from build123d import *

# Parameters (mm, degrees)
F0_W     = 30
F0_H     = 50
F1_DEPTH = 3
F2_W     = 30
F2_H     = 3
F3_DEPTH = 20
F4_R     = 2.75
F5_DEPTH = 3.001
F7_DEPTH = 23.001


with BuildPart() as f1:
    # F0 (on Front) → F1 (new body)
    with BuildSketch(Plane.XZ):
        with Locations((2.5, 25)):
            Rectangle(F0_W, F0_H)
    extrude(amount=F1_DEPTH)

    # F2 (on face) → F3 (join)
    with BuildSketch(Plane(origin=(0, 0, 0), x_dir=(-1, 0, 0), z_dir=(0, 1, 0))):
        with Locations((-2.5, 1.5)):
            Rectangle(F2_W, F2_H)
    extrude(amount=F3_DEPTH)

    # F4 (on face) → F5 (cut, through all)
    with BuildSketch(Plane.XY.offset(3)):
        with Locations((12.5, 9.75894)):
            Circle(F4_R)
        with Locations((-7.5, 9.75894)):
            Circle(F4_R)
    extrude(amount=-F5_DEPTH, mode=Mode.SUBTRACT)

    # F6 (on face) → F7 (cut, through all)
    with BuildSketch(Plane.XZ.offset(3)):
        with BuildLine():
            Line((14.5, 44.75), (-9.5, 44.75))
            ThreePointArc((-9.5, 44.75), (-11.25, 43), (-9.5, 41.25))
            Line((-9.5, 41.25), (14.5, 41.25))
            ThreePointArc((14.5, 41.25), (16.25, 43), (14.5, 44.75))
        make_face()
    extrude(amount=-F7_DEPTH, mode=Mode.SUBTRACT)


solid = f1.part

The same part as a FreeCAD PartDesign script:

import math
import FreeCAD as App
import Part
import Sketcher

doc = App.newDocument("Part")
params = doc.addObject("Spreadsheet::Sheet", "Params")
for row, (alias, value) in enumerate([
    ("sketch1_width", "30 mm"),
    ("sketch1_height", "50 mm"),
    ("pad1_length", "3 mm"),
    ("sketch2_width", "30 mm"),
    ("sketch2_height", "3 mm"),
    ("pad2_length", "20 mm"),
    ("sketch3_diameter", "5.5 mm"),
    ("sketch4_width", "24 mm"),
    ("sketch4_radius", "1.75 mm"),
], start=1):
    params.set(f"A{row}", alias)
    params.set(f"B{row}", "=" + value)
    params.setAlias(f"B{row}", alias)

body = doc.addObject("PartDesign::Body", "Body")

# Sketch on XZ plane
sketch1 = doc.addObject("Sketcher::SketchObject", "Sketch")
body.addObject(sketch1)
sketch1.AttachmentSupport = (doc.XZ_Plane, [""])
sketch1.MapMode = "FlatFace"
sketch1.addGeometry(Part.LineSegment(App.Vector(-12, 50, 0), App.Vector(-12, 0, 0)), False)
sketch1.addGeometry(Part.LineSegment(App.Vector(-12, 0, 0), App.Vector(18, 0, 0)), False)
sketch1.addGeometry(Part.LineSegment(App.Vector(18, 0, 0), App.Vector(18, 50, 0)), False)
sketch1.addGeometry(Part.LineSegment(App.Vector(18, 50, 0), App.Vector(-12, 50, 0)), False)
sketch1.addConstraint(Sketcher.Constraint("Coincident", 0, 2, 1, 1))
sketch1.addConstraint(Sketcher.Constraint("Coincident", 1, 2, 2, 1))
sketch1.addConstraint(Sketcher.Constraint("Coincident", 2, 2, 3, 1))
sketch1.addConstraint(Sketcher.Constraint("Coincident", 3, 2, 0, 1))
sketch1.addConstraint(Sketcher.Constraint("Vertical", 0))
sketch1.addConstraint(Sketcher.Constraint("Horizontal", 1))
sketch1.addConstraint(Sketcher.Constraint("Vertical", 2))
sketch1.addConstraint(Sketcher.Constraint("Horizontal", 3))
sketch1.addConstraint(Sketcher.Constraint("PointOnObject", 0, 2, -1))
sketch1.addConstraint(Sketcher.Constraint("DistanceX", 1, 1, 1, 2, 30.0))
sketch1.addConstraint(Sketcher.Constraint("DistanceY", 0, 2, 0, 1, 50.0))
sketch1.addConstraint(Sketcher.Constraint("DistanceX", 0, 2, -1, 1, 12.5))
sketch1.setExpression("Constraints[9]", "Params.sketch1_width")
sketch1.setExpression("Constraints[10]", "Params.sketch1_height")
pad1 = doc.addObject("PartDesign::Pad", "Pad")
body.addObject(pad1)
pad1.Profile = sketch1
pad1.setExpression("Length", "Params.pad1_length")

# Sketch on XZ plane
sketch2 = doc.addObject("Sketcher::SketchObject", "Sketch001")
body.addObject(sketch2)
sketch2.AttachmentSupport = (doc.XZ_Plane, [""])
sketch2.MapMode = "FlatFace"
sketch2.addGeometry(Part.LineSegment(App.Vector(17.5, 3, 0), App.Vector(17.5, 0, 0)), False)
sketch2.addGeometry(Part.LineSegment(App.Vector(17.5, 0, 0), App.Vector(-12.5, 0, 0)), False)
sketch2.addGeometry(Part.LineSegment(App.Vector(-12.5, 0, 0), App.Vector(-12.5, 3, 0)), False)
sketch2.addGeometry(Part.LineSegment(App.Vector(-12.5, 3, 0), App.Vector(17.5, 3, 0)), False)
sketch2.addConstraint(Sketcher.Constraint("Coincident", 0, 2, 1, 1))
sketch2.addConstraint(Sketcher.Constraint("Coincident", 1, 2, 2, 1))
sketch2.addConstraint(Sketcher.Constraint("Coincident", 2, 2, 3, 1))
sketch2.addConstraint(Sketcher.Constraint("Coincident", 3, 2, 0, 1))
sketch2.addConstraint(Sketcher.Constraint("Vertical", 0))
sketch2.addConstraint(Sketcher.Constraint("Horizontal", 1))
sketch2.addConstraint(Sketcher.Constraint("Vertical", 2))
sketch2.addConstraint(Sketcher.Constraint("Horizontal", 3))
sketch2.addConstraint(Sketcher.Constraint("PointOnObject", 0, 2, -1))
sketch2.addConstraint(Sketcher.Constraint("DistanceX", 1, 2, 1, 1, 30.0))
sketch2.addConstraint(Sketcher.Constraint("DistanceY", 0, 2, 0, 1, 3.0))
sketch2.addConstraint(Sketcher.Constraint("DistanceX", -1, 1, 0, 2, 17.5))
sketch2.setExpression("Constraints[9]", "Params.sketch2_width")
sketch2.setExpression("Constraints[10]", "Params.sketch2_height")
pad2 = doc.addObject("PartDesign::Pad", "Pad001")
body.addObject(pad2)
pad2.Profile = sketch2
pad2.setExpression("Length", "Params.pad2_length")
pad2.Reversed = True

# Sketch on XY plane
sketch3 = doc.addObject("Sketcher::SketchObject", "Sketch002")
body.addObject(sketch3)
sketch3.AttachmentSupport = (doc.XY_Plane, [""])
sketch3.MapMode = "FlatFace"
sketch3.AttachmentOffset = App.Placement(App.Vector(0, 0, 3), App.Rotation())
sketch3.addGeometry(Part.Circle(App.Vector(12.5, 9.8, 0), App.Vector(0, 0, 1), 2.8), False)
sketch3.addGeometry(Part.Circle(App.Vector(-7.5, 9.8, 0), App.Vector(0, 0, 1), 2.8), False)
sketch3.addConstraint(Sketcher.Constraint("Equal", 0, 1))
sketch3.addConstraint(Sketcher.Constraint("Horizontal", 0, 3, 1, 3))
sketch3.addConstraint(Sketcher.Constraint("Diameter", 0, 5.5))
sketch3.addConstraint(Sketcher.Constraint("DistanceX", 1, 3, 0, 3, 20.0))
sketch3.addConstraint(Sketcher.Constraint("DistanceX", -1, 1, 0, 3, 12.5))
sketch3.addConstraint(Sketcher.Constraint("DistanceY", -1, 1, 0, 3, 9.75894))
sketch3.setExpression("Constraints[2]", "Params.sketch3_diameter")
pocket1 = doc.addObject("PartDesign::Pocket", "Pocket")
body.addObject(pocket1)
pocket1.Profile = sketch3
pocket1.Type = "ThroughAll"

# Sketch on XZ plane
sketch4 = doc.addObject("Sketcher::SketchObject", "Sketch003")
body.addObject(sketch4)
sketch4.AttachmentSupport = (doc.XZ_Plane, [""])
sketch4.MapMode = "FlatFace"
sketch4.AttachmentOffset = App.Placement(App.Vector(0, 0, 3), App.Rotation())
sketch4.addGeometry(Part.LineSegment(App.Vector(14.5, 44.8, 0), App.Vector(-9.5, 44.8, 0)), False)
sketch4.addGeometry(Part.ArcOfCircle(Part.Circle(App.Vector(-9.5, 43, 0), App.Vector(0, 0, 1), 1.8), math.radians(90), math.radians(270)), False)
sketch4.addGeometry(Part.LineSegment(App.Vector(-9.5, 41.2, 0), App.Vector(14.5, 41.2, 0)), False)
sketch4.addGeometry(Part.ArcOfCircle(Part.Circle(App.Vector(14.5, 43, 0), App.Vector(0, 0, 1), 1.8), math.radians(-90), math.radians(90)), False)
sketch4.addConstraint(Sketcher.Constraint("Tangent", 0, 2, 1, 1))
sketch4.addConstraint(Sketcher.Constraint("Tangent", 1, 2, 2, 1))
sketch4.addConstraint(Sketcher.Constraint("Tangent", 2, 2, 3, 1))
sketch4.addConstraint(Sketcher.Constraint("Tangent", 3, 2, 0, 1))
sketch4.addConstraint(Sketcher.Constraint("Horizontal", 0))
sketch4.addConstraint(Sketcher.Constraint("Horizontal", 2))
sketch4.addConstraint(Sketcher.Constraint("DistanceX", 0, 2, 0, 1, 24.0))
sketch4.addConstraint(Sketcher.Constraint("Radius", 1, 1.75))
sketch4.addConstraint(Sketcher.Constraint("DistanceY", -1, 1, 1, 3, 43.0))
sketch4.addConstraint(Sketcher.Constraint("DistanceX", 1, 3, -1, 1, 9.5))
sketch4.setExpression("Constraints[6]", "Params.sketch4_width")
sketch4.setExpression("Constraints[7]", "Params.sketch4_radius")
pocket2 = doc.addObject("PartDesign::Pocket", "Pocket001")
body.addObject(pocket2)
pocket2.Profile = sketch4
pocket2.Type = "ThroughAll"

doc.recompute()
